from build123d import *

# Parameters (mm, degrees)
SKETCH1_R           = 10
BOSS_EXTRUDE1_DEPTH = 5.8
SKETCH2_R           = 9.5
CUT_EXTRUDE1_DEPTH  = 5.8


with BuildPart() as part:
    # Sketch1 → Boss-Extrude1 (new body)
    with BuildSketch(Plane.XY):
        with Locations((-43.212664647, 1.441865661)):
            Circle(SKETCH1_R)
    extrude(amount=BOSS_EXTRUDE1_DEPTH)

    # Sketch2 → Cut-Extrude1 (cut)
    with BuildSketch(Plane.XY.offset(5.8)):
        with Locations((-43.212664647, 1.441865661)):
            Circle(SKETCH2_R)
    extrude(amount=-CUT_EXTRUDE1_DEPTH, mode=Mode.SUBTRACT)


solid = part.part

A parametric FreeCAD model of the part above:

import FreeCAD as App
import Part
import Sketcher

V = App.Vector
Q = App.Units.Quantity

doc = App.newDocument("Part")
body = doc.addObject("PartDesign::Body", "Body")

# Sketch on XY plane
sketch1 = body.newObject("Sketcher::SketchObject", "Sketch")
sketch1.AttachmentSupport = (doc.getObject("XY_Plane"), [""])
sketch1.MapMode = "FlatFace"
sketch1.addGeometry(Part.Circle(V(-43.212665, 1.441866, 0), V(0, 0, 1), 10), False)
sketch1.addConstraint([
    Sketcher.Constraint("Diameter", 0, Q("20 mm")),
    Sketcher.Constraint("DistanceX", 0, 3, -1, 1, Q("43.212665 mm")),
    Sketcher.Constraint("DistanceY", -1, 1, 0, 3, Q("1.441866 mm")),
])
pad1 = body.newObject("PartDesign::Pad", "Pad")
pad1.Profile = sketch1
pad1.Length = 5.8

# Sketch on XY plane
sketch2 = body.newObject("Sketcher::SketchObject", "Sketch001")
sketch2.AttachmentSupport = (doc.getObject("XY_Plane"), [""])
sketch2.MapMode = "FlatFace"
sketch2.AttachmentOffset = App.Placement(V(0, 0, 5.8), App.Rotation())
sketch2.addGeometry(Part.Circle(V(-43.212665, 1.441866, 0), V(0, 0, 1), 9.5), False)
sketch2.addConstraint([
    Sketcher.Constraint("Diameter", 0, Q("19 mm")),
    Sketcher.Constraint("DistanceX", 0, 3, -1, 1, Q("43.212665 mm")),
    Sketcher.Constraint("DistanceY", -1, 1, 0, 3, Q("1.441866 mm")),
])
pocket1 = body.newObject("PartDesign::Pocket", "Pocket")
pocket1.Profile = sketch2
pocket1.Length = 5.8

doc.recompute()
